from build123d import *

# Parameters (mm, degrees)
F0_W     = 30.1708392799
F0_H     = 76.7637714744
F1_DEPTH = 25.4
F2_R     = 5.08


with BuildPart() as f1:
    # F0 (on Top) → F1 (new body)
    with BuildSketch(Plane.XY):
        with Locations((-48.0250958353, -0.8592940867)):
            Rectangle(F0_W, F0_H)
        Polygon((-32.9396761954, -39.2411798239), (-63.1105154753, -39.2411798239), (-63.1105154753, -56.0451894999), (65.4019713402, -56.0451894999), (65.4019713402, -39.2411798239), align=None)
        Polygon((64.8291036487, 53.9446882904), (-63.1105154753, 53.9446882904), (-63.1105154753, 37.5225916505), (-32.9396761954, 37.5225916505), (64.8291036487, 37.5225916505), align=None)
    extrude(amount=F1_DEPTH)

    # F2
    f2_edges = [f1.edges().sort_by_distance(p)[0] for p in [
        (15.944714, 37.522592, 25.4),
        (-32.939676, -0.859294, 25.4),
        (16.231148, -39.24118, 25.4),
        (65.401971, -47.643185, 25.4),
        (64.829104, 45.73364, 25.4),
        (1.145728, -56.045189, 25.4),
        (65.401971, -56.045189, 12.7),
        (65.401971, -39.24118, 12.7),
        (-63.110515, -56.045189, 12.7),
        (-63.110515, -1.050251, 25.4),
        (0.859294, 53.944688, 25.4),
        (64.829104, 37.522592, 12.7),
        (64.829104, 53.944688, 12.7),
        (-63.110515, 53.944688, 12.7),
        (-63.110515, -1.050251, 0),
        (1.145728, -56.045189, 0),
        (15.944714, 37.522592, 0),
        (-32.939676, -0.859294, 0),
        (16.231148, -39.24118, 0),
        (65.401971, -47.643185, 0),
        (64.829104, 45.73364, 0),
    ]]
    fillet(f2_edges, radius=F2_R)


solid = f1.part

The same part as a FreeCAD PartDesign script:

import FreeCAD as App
import Part
import Sketcher
Q = App.Units.Quantity


def edges_at(feature, points):
    """Names of the edges that pass closest to the given points."""
    edges = feature.Shape.Edges
    near = lambda p: min(range(len(edges)), key=lambda i: edges[i].distToShape(Part.Vertex(*p))[0])
    return sorted({f"Edge{near(p) + 1}" for p in points})

doc = App.newDocument("Part")
body = doc.addObject("PartDesign::Body", "Body")

# Sketch on XY plane
sketch1 = body.newObject("Sketcher::SketchObject", "Sketch")
sketch1.AttachmentSupport = (doc.getObject("XY_Plane"), [""])
sketch1.MapMode = "FlatFace"
sketch1.addGeometry(Part.LineSegment(App.Vector(-63, -56, 0), App.Vector(65, -56, 0)), False)
sketch1.addGeometry(Part.LineSegment(App.Vector(65, -56, 0), App.Vector(65, -39, 0)), False)
sketch1.addGeometry(Part.LineSegment(App.Vector(65, -39, 0), App.Vector(-33, -39, 0)), False)
sketch1.addGeometry(Part.LineSegment(App.Vector(-33, -39, 0), App.Vector(-33, 38, 0)), False)
sketch1.addGeometry(Part.LineSegment(App.Vector(-33, 38, 0), App.Vector(65, 38, 0)), False)
sketch1.addGeometry(Part.LineSegment(App.Vector(65, 38, 0), App.Vector(65, 54, 0)), False)
sketch1.addGeometry(Part.LineSegment(App.Vector(65, 54, 0), App.Vector(-63, 54, 0)), False)
sketch1.addGeometry(Part.LineSegment(App.Vector(-63, 54, 0), App.Vector(-63, -56, 0)), False)
sketch1.addConstraint(Sketcher.Constraint("Coincident", 0, 2, 1, 1))
sketch1.addConstraint(Sketcher.Constraint("Coincident", 1, 2, 2, 1))
sketch1.addConstraint(Sketcher.Constraint("Coincident", 2, 2, 3, 1))
sketch1.addConstraint(Sketcher.Constraint("Coincident", 3, 2, 4, 1))
sketch1.addConstraint(Sketcher.Constraint("Coincident", 4, 2, 5, 1))
sketch1.addConstraint(Sketcher.Constraint("Coincident", 5, 2, 6, 1))
sketch1.addConstraint(Sketcher.Constraint("Coincident", 6, 2, 7, 1))
sketch1.addConstraint(Sketcher.Constraint("Coincident", 7, 2, 0, 1))
sketch1.addConstraint(Sketcher.Constraint("Horizontal", 0))
sketch1.addConstraint(Sketcher.Constraint("Vertical", 1))
sketch1.addConstraint(Sketcher.Constraint("Horizontal", 2))
sketch1.addConstraint(Sketcher.Constraint("Vertical", 3))
sketch1.addConstraint(Sketcher.Constraint("Horizontal", 4))
sketch1.addConstraint(Sketcher.Constraint("Vertical", 5))
sketch1.addConstraint(Sketcher.Constraint("Horizontal", 6))
sketch1.addConstraint(Sketcher.Constraint("Vertical", 7))
sketch1.addConstraint(Sketcher.Constraint("DistanceX", 4, 1, 4, 2, Q("97.76878 mm")))
sketch1.addConstraint(Sketcher.Constraint("DistanceX", 6, 2, 6, 1, Q("127.939619 mm")))
sketch1.addConstraint(Sketcher.Constraint("DistanceY", 1, 1, 1, 2, Q("16.80401 mm")))
sketch1.addConstraint(Sketcher.Constraint("DistanceY", 3, 1, 3, 2, Q("76.763771 mm")))
sketch1.addConstraint(Sketcher.Constraint("DistanceX", 0, 1, 0, 2, Q("128.512487 mm")))
sketch1.addConstraint(Sketcher.Constraint("DistanceY", 5, 1, 5, 2, Q("16.422097 mm")))
sketch1.addConstraint(Sketcher.Constraint("DistanceX", -1, 1, 0, 2, Q("65.401971 mm")))
sketch1.addConstraint(Sketcher.Constraint("DistanceY", 0, 2, -1, 1, Q("56.045189 mm")))
pad1 = body.newObject("PartDesign::Pad", "Pad")
pad1.Profile = sketch1
pad1.Length = Q("1 in")
doc.recompute()

fillet = body.newObject("PartDesign::Fillet", "Fillet")
fillet.Base = (pad1, edges_at(pad1, [
    (15.945, 37.523, 25.4),
    (-32.94, -0.859, 25.4),
    (16.231, -39.241, 25.4),
    (65.402, -47.643, 25.4),
    (64.829, 45.734, 25.4),
    (1.146, -56.045, 25.4),
    (65.402, -56.045, 12.7),
    (65.402, -39.241, 12.7),
    (-63.111, -56.045, 12.7),
    (-63.111, -1.05, 25.4),
    (0.859, 53.945, 25.4),
    (64.829, 37.523, 12.7),
    (64.829, 53.945, 12.7),
    (-63.111, 53.945, 12.7),
    (-63.111, -1.05, 0),
    (1.146, -56.045, 0),
    (15.945, 37.523, 0),
    (-32.94, -0.859, 0),
    (16.231, -39.241, 0),
    (65.402, -47.643, 0),
    (64.829, 45.734, 0),
]))
fillet.Radius = Q("0.2 in")

doc.recompute()
